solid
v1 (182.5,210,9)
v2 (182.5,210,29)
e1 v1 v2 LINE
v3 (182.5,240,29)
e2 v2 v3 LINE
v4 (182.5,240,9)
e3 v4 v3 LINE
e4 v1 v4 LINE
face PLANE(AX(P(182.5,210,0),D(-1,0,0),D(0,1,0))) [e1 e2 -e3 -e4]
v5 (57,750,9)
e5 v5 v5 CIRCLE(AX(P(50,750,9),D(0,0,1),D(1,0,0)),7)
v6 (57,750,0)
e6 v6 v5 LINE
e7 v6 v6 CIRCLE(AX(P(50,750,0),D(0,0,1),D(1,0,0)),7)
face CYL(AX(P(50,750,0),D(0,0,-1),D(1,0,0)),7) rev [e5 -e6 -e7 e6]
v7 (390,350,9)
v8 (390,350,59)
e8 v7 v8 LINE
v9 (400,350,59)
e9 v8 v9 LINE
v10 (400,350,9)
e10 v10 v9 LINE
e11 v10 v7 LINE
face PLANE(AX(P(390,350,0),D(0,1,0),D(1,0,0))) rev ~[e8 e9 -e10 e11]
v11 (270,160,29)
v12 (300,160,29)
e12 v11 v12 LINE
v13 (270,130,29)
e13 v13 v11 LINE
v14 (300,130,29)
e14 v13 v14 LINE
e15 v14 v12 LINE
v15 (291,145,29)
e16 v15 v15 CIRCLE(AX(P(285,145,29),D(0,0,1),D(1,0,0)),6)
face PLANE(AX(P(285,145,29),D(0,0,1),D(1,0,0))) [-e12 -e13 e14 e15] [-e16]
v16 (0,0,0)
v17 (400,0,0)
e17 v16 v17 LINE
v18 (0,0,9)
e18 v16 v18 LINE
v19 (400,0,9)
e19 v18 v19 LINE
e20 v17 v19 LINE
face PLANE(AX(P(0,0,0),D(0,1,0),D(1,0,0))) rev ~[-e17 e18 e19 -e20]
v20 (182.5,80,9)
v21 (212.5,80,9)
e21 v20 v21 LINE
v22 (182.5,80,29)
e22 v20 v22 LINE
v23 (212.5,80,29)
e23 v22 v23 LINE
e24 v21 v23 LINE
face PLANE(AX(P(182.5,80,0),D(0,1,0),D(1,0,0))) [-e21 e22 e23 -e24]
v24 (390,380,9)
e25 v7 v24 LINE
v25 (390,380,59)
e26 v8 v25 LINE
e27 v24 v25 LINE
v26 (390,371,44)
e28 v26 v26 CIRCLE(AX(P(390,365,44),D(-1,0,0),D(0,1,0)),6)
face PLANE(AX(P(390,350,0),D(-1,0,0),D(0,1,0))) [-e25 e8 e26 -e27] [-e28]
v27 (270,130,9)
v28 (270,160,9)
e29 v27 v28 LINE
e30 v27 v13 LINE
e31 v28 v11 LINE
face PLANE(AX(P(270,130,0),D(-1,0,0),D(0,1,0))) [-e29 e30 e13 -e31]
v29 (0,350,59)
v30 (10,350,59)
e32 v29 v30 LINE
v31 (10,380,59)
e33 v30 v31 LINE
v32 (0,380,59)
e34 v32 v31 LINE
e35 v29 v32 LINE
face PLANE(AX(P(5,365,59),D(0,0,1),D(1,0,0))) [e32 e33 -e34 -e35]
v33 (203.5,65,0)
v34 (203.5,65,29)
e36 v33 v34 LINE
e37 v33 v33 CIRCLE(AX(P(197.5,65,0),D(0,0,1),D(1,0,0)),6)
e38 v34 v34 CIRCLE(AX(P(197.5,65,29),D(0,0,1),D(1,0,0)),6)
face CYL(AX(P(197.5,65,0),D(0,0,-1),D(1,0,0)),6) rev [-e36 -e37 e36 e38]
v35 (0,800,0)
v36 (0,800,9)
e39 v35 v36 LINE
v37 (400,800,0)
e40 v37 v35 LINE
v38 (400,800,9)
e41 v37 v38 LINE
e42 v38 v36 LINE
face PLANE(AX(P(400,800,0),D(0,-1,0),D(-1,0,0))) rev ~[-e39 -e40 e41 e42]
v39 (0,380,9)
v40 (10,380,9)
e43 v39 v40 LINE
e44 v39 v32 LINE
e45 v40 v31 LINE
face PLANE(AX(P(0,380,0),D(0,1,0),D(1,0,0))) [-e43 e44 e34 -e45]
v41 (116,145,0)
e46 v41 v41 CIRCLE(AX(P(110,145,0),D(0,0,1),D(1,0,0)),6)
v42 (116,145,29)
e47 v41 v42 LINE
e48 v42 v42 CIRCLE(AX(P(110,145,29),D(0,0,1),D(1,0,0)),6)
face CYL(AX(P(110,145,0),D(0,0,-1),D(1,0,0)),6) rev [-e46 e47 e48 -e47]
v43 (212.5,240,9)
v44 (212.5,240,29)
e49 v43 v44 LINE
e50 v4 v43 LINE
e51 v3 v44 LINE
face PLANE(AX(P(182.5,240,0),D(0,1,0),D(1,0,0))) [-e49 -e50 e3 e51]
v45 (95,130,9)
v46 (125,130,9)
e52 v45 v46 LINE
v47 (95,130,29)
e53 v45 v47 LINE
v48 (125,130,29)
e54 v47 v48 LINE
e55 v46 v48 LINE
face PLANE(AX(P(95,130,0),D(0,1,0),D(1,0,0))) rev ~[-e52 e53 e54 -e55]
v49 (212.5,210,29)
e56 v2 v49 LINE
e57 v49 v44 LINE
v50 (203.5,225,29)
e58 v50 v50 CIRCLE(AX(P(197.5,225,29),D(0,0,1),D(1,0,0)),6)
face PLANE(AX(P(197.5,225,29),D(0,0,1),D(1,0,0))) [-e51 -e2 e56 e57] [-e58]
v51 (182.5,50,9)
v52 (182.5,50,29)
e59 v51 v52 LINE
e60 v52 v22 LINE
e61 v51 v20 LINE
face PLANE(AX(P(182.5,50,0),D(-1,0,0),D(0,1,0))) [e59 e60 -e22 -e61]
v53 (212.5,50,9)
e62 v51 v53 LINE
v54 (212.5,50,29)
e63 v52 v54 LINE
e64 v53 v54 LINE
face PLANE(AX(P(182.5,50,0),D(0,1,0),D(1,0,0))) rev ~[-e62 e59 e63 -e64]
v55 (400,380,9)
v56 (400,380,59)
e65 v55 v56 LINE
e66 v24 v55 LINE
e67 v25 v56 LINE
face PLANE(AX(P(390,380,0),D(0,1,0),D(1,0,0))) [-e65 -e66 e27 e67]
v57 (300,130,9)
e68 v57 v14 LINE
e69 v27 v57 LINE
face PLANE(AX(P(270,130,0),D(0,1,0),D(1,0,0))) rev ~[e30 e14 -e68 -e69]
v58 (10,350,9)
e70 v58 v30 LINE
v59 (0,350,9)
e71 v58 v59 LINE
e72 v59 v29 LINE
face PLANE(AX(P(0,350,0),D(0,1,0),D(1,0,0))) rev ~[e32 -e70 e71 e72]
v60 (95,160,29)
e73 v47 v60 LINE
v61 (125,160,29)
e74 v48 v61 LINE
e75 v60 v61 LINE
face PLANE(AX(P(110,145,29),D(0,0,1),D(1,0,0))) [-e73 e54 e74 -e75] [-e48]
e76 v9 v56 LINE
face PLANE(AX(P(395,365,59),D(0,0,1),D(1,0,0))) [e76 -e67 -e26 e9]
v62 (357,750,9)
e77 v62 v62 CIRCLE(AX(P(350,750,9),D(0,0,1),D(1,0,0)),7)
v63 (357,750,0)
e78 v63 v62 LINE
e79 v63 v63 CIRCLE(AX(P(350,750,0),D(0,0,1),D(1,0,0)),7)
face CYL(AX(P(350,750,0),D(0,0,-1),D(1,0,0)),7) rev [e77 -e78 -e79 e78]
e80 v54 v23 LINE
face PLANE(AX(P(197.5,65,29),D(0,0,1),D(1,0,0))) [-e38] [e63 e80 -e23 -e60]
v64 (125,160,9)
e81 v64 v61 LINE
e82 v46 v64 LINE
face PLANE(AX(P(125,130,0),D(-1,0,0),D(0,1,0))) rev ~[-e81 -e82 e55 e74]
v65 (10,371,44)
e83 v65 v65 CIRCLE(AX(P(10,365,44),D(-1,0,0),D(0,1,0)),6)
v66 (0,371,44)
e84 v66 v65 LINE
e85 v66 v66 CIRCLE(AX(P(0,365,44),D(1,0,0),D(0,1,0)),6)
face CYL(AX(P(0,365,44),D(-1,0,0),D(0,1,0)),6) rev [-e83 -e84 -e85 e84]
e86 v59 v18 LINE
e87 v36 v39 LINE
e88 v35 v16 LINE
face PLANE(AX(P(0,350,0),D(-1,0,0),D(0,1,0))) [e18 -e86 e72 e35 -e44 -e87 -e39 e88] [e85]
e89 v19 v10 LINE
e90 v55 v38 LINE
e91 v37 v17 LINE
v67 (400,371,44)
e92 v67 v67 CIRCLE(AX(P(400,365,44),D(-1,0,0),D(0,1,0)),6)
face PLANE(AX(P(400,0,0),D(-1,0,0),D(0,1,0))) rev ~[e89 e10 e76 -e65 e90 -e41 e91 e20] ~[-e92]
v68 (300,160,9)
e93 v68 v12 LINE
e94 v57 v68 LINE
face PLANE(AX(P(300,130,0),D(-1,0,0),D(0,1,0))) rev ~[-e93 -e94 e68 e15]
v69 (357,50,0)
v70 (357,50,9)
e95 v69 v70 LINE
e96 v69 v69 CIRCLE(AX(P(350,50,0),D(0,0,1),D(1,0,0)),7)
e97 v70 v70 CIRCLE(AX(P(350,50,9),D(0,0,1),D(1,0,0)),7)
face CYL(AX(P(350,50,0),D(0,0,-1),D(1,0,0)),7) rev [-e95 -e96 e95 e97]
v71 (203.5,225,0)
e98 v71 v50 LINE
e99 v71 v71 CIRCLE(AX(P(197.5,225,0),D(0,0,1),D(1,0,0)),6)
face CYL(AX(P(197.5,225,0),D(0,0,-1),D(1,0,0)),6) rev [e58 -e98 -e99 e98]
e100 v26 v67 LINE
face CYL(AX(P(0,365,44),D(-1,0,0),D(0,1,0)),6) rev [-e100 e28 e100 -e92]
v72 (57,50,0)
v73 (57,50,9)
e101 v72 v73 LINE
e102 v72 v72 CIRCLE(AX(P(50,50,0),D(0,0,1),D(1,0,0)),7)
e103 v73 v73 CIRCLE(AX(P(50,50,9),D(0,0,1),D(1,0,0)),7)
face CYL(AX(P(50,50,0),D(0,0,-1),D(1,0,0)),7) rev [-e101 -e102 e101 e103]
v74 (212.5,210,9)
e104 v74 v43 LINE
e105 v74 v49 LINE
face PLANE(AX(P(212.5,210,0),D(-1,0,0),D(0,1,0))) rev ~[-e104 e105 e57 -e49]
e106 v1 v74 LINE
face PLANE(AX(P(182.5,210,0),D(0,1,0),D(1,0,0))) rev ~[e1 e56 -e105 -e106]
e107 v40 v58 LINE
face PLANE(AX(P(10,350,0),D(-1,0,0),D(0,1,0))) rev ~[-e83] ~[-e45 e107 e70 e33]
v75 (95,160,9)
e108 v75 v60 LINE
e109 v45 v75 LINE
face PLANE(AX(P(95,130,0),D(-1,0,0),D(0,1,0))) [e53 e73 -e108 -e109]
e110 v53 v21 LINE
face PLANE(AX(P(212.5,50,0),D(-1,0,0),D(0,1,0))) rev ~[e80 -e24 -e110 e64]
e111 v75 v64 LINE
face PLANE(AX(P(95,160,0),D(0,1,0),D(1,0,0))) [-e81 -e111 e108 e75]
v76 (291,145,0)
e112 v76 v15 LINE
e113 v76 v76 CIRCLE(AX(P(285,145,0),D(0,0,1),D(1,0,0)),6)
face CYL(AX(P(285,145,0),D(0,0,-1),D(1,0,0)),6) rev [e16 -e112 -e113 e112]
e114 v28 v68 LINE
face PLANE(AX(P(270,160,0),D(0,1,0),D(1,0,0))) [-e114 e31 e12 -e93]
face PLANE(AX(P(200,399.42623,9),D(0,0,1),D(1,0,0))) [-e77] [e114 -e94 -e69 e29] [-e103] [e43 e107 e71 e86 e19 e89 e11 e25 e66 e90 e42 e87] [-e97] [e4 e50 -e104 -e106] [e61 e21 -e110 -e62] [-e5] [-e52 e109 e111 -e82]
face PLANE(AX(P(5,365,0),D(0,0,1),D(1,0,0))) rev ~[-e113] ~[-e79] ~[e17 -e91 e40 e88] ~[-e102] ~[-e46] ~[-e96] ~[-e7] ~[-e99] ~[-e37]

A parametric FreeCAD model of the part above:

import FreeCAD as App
import Part
import Sketcher
Q = App.Units.Quantity


def add_polygon(sketch, points):
    """Adds a closed chain of lines whose ends are joined by coincident constraints."""
    first, n = sketch.GeometryCount, len(points)
    for a, b in zip(points, points[1:] + points[:1]):
        sketch.addGeometry(Part.LineSegment(App.Vector(*a, 0), App.Vector(*b, 0)), False)
    for i in range(n):
        sketch.addConstraint(Sketcher.Constraint("Coincident", first + i, 2, first + (i + 1) % n, 1))

doc = App.newDocument("Part")
body = doc.addObject("PartDesign::Body", "Body")

# Sketch on XY plane
sketch1 = body.newObject("Sketcher::SketchObject", "Sketch")
sketch1.AttachmentSupport = (doc.getObject("XY_Plane"), [""])
sketch1.MapMode = "FlatFace"
add_polygon(sketch1, [(0, 350), (0, 0), (400, 0), (400, 350), (390, 350), (390, 380), (400, 380), (400, 800), (0, 800), (0, 380), (10, 380), (10, 350)])  # lines 0-11
sketch1.addGeometry(Part.Circle(App.Vector(50, 50, 0), App.Vector(0, 0, 1), 7), False)  # 12
add_polygon(sketch1, [(125, 130), (95, 130), (95, 160), (125, 160)])  # lines 13-16
add_polygon(sketch1, [(212, 50), (182, 50), (182, 80), (212, 80)])  # lines 17-20
add_polygon(sketch1, [(212, 210), (182, 210), (182, 240), (212, 240)])  # lines 21-24
sketch1.addGeometry(Part.Circle(App.Vector(350, 50, 0), App.Vector(0, 0, 1), 7), False)  # 25
add_polygon(sketch1, [(300, 130), (270, 130), (270, 160), (300, 160)])  # lines 26-29
sketch1.addGeometry(Part.Circle(App.Vector(50, 750, 0), App.Vector(0, 0, 1), 7), False)  # 30
sketch1.addGeometry(Part.Circle(App.Vector(350, 750, 0), App.Vector(0, 0, 1), 7), False)  # 31
sketch1.addConstraint([
    Sketcher.Constraint("Vertical", 0),
    Sketcher.Constraint("Horizontal", 1),
    Sketcher.Constraint("Vertical", 2),
    Sketcher.Constraint("Horizontal", 3),
    Sketcher.Constraint("Vertical", 4),
    Sketcher.Constraint("Horizontal", 5),
    Sketcher.Constraint("Vertical", 6),
    Sketcher.Constraint("Horizontal", 7),
    Sketcher.Constraint("Vertical", 8),
    Sketcher.Constraint("Horizontal", 9),
    Sketcher.Constraint("Vertical", 10),
    Sketcher.Constraint("Horizontal", 11),
    Sketcher.Constraint("Horizontal", 13),
    Sketcher.Constraint("Vertical", 14),
    Sketcher.Constraint("Horizontal", 15),
    Sketcher.Constraint("Vertical", 16),
    Sketcher.Constraint("Horizontal", 17),
    Sketcher.Constraint("Vertical", 18),
    Sketcher.Constraint("Horizontal", 19),
    Sketcher.Constraint("Vertical", 20),
    Sketcher.Constraint("Horizontal", 21),
    Sketcher.Constraint("Vertical", 22),
    Sketcher.Constraint("Horizontal", 23),
    Sketcher.Constraint("Vertical", 24),
    Sketcher.Constraint("Horizontal", 26),
    Sketcher.Constraint("Vertical", 27),
    Sketcher.Constraint("Horizontal", 28),
    Sketcher.Constraint("Vertical", 29),
    Sketcher.Constraint("Coincident", 0, 2, -1, 1),
    Sketcher.Constraint("Equal", 12, 25),
    Sketcher.Constraint("Equal", 25, 30),
    Sketcher.Constraint("Equal", 30, 31),
    Sketcher.Constraint("PointOnObject", 7, 2, -2),
    Sketcher.Constraint("Horizontal", 12, 3, 25, 3),
    Sketcher.Constraint("Horizontal", 30, 3, 31, 3),
    Sketcher.Constraint("Horizontal", 5, 2, 8, 2),
    Sketcher.Constraint("Horizontal", 3, 2, 10, 2),
    Sketcher.Constraint("Horizontal", 25, 3, 17, 2),
    Sketcher.Constraint("Horizontal", 16, 2, 26, 2),
    Sketcher.Constraint("Horizontal", 15, 2, 27, 2),
    Sketcher.Constraint("Vertical", 12, 3, 30, 3),
    Sketcher.Constraint("Vertical", 25, 3, 31, 3),
    Sketcher.Constraint("Vertical", 2, 2, 5, 2),
    Sketcher.Constraint("Vertical", 18, 2, 21, 2),
    Sketcher.Constraint("Vertical", 20, 2, 23, 2),
    Sketcher.Constraint("Equal", 5, 9),
    Sketcher.Constraint("Equal", 15, 17),
    Sketcher.Constraint("Equal", 23, 26),
    Sketcher.Constraint("Equal", 28, 4),
    Sketcher.Constraint("Equal", 10, 14),
    Sketcher.Constraint("Equal", 16, 18),
    Sketcher.Constraint("Equal", 20, 22),
    Sketcher.Constraint("Diameter", 12, Q("14 mm")),
    Sketcher.Constraint("DistanceX", 1, 1, 1, 2, Q("400 mm")),
    Sketcher.Constraint("DistanceX", 3, 2, 3, 1, Q("10 mm")),
    Sketcher.Constraint("DistanceX", 13, 2, 13, 1, Q("30 mm")),
    Sketcher.Constraint("DistanceY", 0, 2, 0, 1, Q("350 mm")),
    Sketcher.Constraint("DistanceY", 6, 1, 6, 2, Q("420 mm")),
    Sketcher.Constraint("DistanceX", -1, 1, 12, 3, Q("50 mm")),
    Sketcher.Constraint("DistanceY", -1, 1, 12, 3, Q("50 mm")),
    Sketcher.Constraint("DistanceX", -1, 1, 25, 3, Q("350 mm")),
    Sketcher.Constraint("DistanceY", -1, 1, 30, 3, Q("750 mm")),
    Sketcher.Constraint("DistanceX", -1, 1, 13, 2, Q("95 mm")),
    Sketcher.Constraint("DistanceY", -1, 1, 13, 2, Q("130 mm")),
    Sketcher.Constraint("DistanceY", -1, 1, 21, 2, Q("210 mm")),
    Sketcher.Constraint("DistanceX", -1, 1, 26, 2, Q("270 mm")),
    Sketcher.Constraint("DistanceX", -1, 1, 17, 2, Q("182.5 mm")),
])
pad1 = body.newObject("PartDesign::Pad", "Pad")
pad1.Profile = sketch1
pad1.Length = 9

# Sketch on XY plane
sketch2 = body.newObject("Sketcher::SketchObject", "Sketch001")
sketch2.AttachmentSupport = (doc.getObject("XY_Plane"), [""])
sketch2.MapMode = "FlatFace"
add_polygon(sketch2, [(95, 160), (95, 130), (125, 130), (125, 160)])  # lines 0-3
sketch2.addGeometry(Part.Circle(App.Vector(110, 145, 0), App.Vector(0, 0, 1), 6), False)  # 4
add_polygon(sketch2, [(182, 240), (182, 210), (212, 210), (212, 240)])  # lines 5-8
sketch2.addGeometry(Part.Circle(App.Vector(198, 225, 0), App.Vector(0, 0, 1), 6), False)  # 9
add_polygon(sketch2, [(182, 80), (182, 50), (212, 50), (212, 80)])  # lines 10-13
sketch2.addGeometry(Part.Circle(App.Vector(198, 65, 0), App.Vector(0, 0, 1), 6), False)  # 14
add_polygon(sketch2, [(270, 160), (270, 130), (300, 130), (300, 160)])  # lines 15-18
sketch2.addGeometry(Part.Circle(App.Vector(285, 145, 0), App.Vector(0, 0, 1), 6), False)  # 19
sketch2.addConstraint([
    Sketcher.Constraint("Vertical", 0),
    Sketcher.Constraint("Horizontal", 1),
    Sketcher.Constraint("Vertical", 2),
    Sketcher.Constraint("Horizontal", 3),
    Sketcher.Constraint("Vertical", 5),
    Sketcher.Constraint("Horizontal", 6),
    Sketcher.Constraint("Vertical", 7),
    Sketcher.Constraint("Horizontal", 8),
    Sketcher.Constraint("Vertical", 10),
    Sketcher.Constraint("Horizontal", 11),
    Sketcher.Constraint("Vertical", 12),
    Sketcher.Constraint("Horizontal", 13),
    Sketcher.Constraint("Vertical", 15),
    Sketcher.Constraint("Horizontal", 16),
    Sketcher.Constraint("Vertical", 17),
    Sketcher.Constraint("Horizontal", 18),
    Sketcher.Constraint("Equal", 4, 9),
    Sketcher.Constraint("Equal", 9, 14),
    Sketcher.Constraint("Equal", 14, 19),
    Sketcher.Constraint("Horizontal", 4, 3, 19, 3),
    Sketcher.Constraint("Horizontal", 1, 2, 15, 2),
    Sketcher.Constraint("Horizontal", 3, 2, 17, 2),
    Sketcher.Constraint("Vertical", 9, 3, 14, 3),
    Sketcher.Constraint("Vertical", 8, 2, 10, 2),
    Sketcher.Constraint("Vertical", 7, 2, 11, 2),
    Sketcher.Constraint("Equal", 3, 6),
    Sketcher.Constraint("Equal", 13, 16),
    Sketcher.Constraint("Equal", 18, 0),
    Sketcher.Constraint("Equal", 2, 5),
    Sketcher.Constraint("Equal", 7, 10),
    Sketcher.Constraint("Diameter", 4, Q("12 mm")),
    Sketcher.Constraint("DistanceX", 1, 1, 1, 2, Q("30 mm")),
    Sketcher.Constraint("DistanceX", -1, 1, 4, 3, Q("110 mm")),
    Sketcher.Constraint("DistanceY", -1, 1, 4, 3, Q("145 mm")),
    Sketcher.Constraint("DistanceY", -1, 1, 9, 3, Q("225 mm")),
    Sketcher.Constraint("DistanceY", -1, 1, 14, 3, Q("65 mm")),
    Sketcher.Constraint("DistanceX", -1, 1, 19, 3, Q("285 mm")),
    Sketcher.Constraint("DistanceX", -1, 1, 0, 2, Q("95 mm")),
    Sketcher.Constraint("DistanceY", -1, 1, 0, 2, Q("130 mm")),
    Sketcher.Constraint("DistanceY", -1, 1, 5, 2, Q("210 mm")),
    Sketcher.Constraint("DistanceY", -1, 1, 10, 2, Q("50 mm")),
    Sketcher.Constraint("DistanceX", -1, 1, 15, 2, Q("270 mm")),
    Sketcher.Constraint("DistanceX", 5, 2, 9, 3, Q("15 mm")),
    Sketcher.Constraint("DistanceX", -1, 1, 9, 3, Q("197.5 mm")),
])
pad2 = body.newObject("PartDesign::Pad", "Pad001")
pad2.Profile = sketch2
pad2.Length = 29

# Sketch on XY plane
sketch3 = body.newObject("Sketcher::SketchObject", "Sketch002")
sketch3.AttachmentSupport = (doc.getObject("XY_Plane"), [""])
sketch3.MapMode = "FlatFace"
add_polygon(sketch3, [(0, 380), (0, 350), (10, 350), (10, 380)])  # lines 0-3
add_polygon(sketch3, [(390, 380), (390, 350), (400, 350), (400, 380)])  # lines 4-7
sketch3.addConstraint([
    Sketcher.Constraint("Vertical", 0),
    Sketcher.Constraint("Horizontal", 1),
    Sketcher.Constraint("Vertical", 2),
    Sketcher.Constraint("Horizontal", 3),
    Sketcher.Constraint("Vertical", 4),
    Sketcher.Constraint("Horizontal", 5),
    Sketcher.Constraint("Vertical", 6),
    Sketcher.Constraint("Horizontal", 7),
    Sketcher.Constraint("PointOnObject", 0, 2, -2),
    Sketcher.Constraint("Horizontal", 1, 2, 4, 2),
    Sketcher.Constraint("Horizontal", 3, 2, 6, 2),
    Sketcher.Constraint("Equal", 3, 5),
    Sketcher.Constraint("DistanceX", 1, 1, 1, 2, Q("10 mm")),
    Sketcher.Constraint("DistanceY", 0, 2, 0, 1, Q("30 mm")),
    Sketcher.Constraint("DistanceY", -1, 1, 0, 2, Q("350 mm")),
    Sketcher.Constraint("DistanceX", -1, 1, 4, 2, Q("390 mm")),
])
pad3 = body.newObject("PartDesign::Pad", "Pad002")
pad3.Profile = sketch3
pad3.Length = 59

# Sketch on YZ plane
sketch4 = body.newObject("Sketcher::SketchObject", "Sketch003")
sketch4.AttachmentSupport = (doc.getObject("YZ_Plane"), [""])
sketch4.MapMode = "FlatFace"
sketch4.addGeometry(Part.Circle(App.Vector(365, 44, 0), App.Vector(0, 0, 1), 6), False)
sketch4.addConstraint([
    Sketcher.Constraint("Diameter", 0, Q("12 mm")),
    Sketcher.Constraint("DistanceX", -1, 1, 0, 3, Q("365 mm")),
    Sketcher.Constraint("DistanceY", -1, 1, 0, 3, Q("44 mm")),
])
pocket1 = body.newObject("PartDesign::Pocket", "Pocket")
pocket1.Profile = sketch4
pocket1.Length = 486
pocket1.Reversed = True

doc.recompute()
